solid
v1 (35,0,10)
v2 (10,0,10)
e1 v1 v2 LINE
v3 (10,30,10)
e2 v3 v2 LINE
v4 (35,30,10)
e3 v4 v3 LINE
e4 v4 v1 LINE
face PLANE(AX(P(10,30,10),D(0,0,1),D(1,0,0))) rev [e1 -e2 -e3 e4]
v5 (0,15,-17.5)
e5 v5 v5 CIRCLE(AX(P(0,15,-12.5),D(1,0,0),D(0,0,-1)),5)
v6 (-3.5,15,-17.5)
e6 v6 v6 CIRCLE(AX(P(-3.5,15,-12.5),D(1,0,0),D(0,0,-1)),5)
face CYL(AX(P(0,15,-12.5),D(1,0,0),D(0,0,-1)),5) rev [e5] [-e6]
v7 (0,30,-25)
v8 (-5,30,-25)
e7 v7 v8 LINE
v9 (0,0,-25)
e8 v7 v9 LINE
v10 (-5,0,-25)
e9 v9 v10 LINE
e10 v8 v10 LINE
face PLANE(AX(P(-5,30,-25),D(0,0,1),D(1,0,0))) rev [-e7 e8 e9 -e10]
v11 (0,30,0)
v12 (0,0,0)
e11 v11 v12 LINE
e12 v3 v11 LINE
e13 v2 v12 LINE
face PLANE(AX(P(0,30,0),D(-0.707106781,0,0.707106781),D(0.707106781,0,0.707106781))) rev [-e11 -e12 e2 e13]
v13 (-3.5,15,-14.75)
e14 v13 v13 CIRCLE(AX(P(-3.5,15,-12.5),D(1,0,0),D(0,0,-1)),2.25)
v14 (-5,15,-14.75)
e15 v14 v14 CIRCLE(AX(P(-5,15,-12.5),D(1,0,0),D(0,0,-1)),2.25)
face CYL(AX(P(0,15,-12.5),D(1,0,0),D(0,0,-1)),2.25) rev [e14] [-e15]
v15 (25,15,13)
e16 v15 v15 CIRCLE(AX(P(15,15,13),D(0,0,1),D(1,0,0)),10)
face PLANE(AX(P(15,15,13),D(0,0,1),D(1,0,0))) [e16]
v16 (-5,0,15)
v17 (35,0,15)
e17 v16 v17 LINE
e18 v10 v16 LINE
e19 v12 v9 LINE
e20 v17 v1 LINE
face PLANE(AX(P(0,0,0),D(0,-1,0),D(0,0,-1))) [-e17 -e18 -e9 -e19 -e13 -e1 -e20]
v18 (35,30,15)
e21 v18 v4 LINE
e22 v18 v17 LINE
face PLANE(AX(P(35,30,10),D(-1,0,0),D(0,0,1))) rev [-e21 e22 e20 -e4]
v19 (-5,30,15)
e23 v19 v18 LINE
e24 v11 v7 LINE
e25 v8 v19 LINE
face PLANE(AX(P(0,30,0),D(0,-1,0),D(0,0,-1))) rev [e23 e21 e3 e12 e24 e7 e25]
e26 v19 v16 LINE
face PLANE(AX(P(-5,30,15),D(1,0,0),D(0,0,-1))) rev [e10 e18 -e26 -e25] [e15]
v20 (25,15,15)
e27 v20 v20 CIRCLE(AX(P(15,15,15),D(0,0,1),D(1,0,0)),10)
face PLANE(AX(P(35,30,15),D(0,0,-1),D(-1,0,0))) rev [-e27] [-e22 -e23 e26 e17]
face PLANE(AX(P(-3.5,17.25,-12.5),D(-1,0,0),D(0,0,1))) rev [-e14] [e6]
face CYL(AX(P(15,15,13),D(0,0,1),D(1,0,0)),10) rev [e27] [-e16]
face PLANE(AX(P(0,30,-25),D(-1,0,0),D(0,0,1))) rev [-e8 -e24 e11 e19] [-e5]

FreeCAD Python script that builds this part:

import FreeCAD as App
import Part
import Sketcher
Q = App.Units.Quantity


def add_polygon(sketch, points):
    """Adds a closed chain of lines whose ends are joined by coincident constraints."""
    first, n = sketch.GeometryCount, len(points)
    for a, b in zip(points, points[1:] + points[:1]):
        sketch.addGeometry(Part.LineSegment(App.Vector(*a, 0), App.Vector(*b, 0)), False)
    for i in range(n):
        sketch.addConstraint(Sketcher.Constraint("Coincident", first + i, 2, first + (i + 1) % n, 1))

doc = App.newDocument("Part")
body = doc.addObject("PartDesign::Body", "Body")

# Sketch on XZ plane
sketch1 = body.newObject("Sketcher::SketchObject", "Sketch")
sketch1.AttachmentSupport = (doc.getObject("XZ_Plane"), [""])
sketch1.MapMode = "FlatFace"
add_polygon(sketch1, [(0, 0), (0, -25), (-5, -25), (-5, 15), (35, 15), (35, 10), (10, 10)])  # lines 0-6
sketch1.addConstraint(Sketcher.Constraint("Vertical", 0))
sketch1.addConstraint(Sketcher.Constraint("Horizontal", 1))
sketch1.addConstraint(Sketcher.Constraint("Vertical", 2))
sketch1.addConstraint(Sketcher.Constraint("Horizontal", 3))
sketch1.addConstraint(Sketcher.Constraint("Vertical", 4))
sketch1.addConstraint(Sketcher.Constraint("Horizontal", 5))
sketch1.addConstraint(Sketcher.Constraint("Coincident", 6, 2, -1, 1))
sketch1.addConstraint(Sketcher.Constraint("Equal", 5, 0))
sketch1.addConstraint(Sketcher.Constraint("Equal", 3, 2))
sketch1.addConstraint(Sketcher.Constraint("Equal", 1, 4))
sketch1.addConstraint(Sketcher.Constraint("DistanceX", 1, 2, 1, 1, Q("5 mm")))
sketch1.addConstraint(Sketcher.Constraint("DistanceX", 3, 1, 3, 2, Q("40 mm")))
sketch1.addConstraint(Sketcher.Constraint("DistanceX", 5, 2, 5, 1, Q("25 mm")))
pad1 = body.newObject("PartDesign::Pad", "Pad")
pad1.Profile = sketch1
pad1.Length = 30
pad1.Reversed = True

# Sketch on YZ plane
sketch2 = body.newObject("Sketcher::SketchObject", "Sketch001")
sketch2.AttachmentSupport = (doc.getObject("YZ_Plane"), [""])
sketch2.MapMode = "FlatFace"
sketch2.addGeometry(Part.Circle(App.Vector(15, -12.5, 0), App.Vector(0, 0, 1), 2.2), False)
sketch2.addConstraint(Sketcher.Constraint("Diameter", 0, Q("4.5 mm")))
sketch2.addConstraint(Sketcher.Constraint("DistanceX", -1, 1, 0, 3, Q("15 mm")))
sketch2.addConstraint(Sketcher.Constraint("DistanceY", 0, 3, -1, 1, Q("12.5 mm")))
doc.recompute()
hole = body.newObject("PartDesign::Hole", "Hole")
hole.Profile = sketch2
hole.ThreadType = "None"
hole.Diameter = 4.5
hole.DepthType = "Dimension"
hole.Depth = 15
hole.DrillPoint = "Angled"
hole.DrillPointAngle = 118
hole.HoleCutType = "Counterbore"
hole.HoleCutDiameter = 10
hole.HoleCutDepth = 3.5

# Sketch on XY plane
sketch3 = body.newObject("Sketcher::SketchObject", "Sketch002")
sketch3.AttachmentSupport = (doc.getObject("XY_Plane"), [""])
sketch3.MapMode = "FlatFace"
sketch3.AttachmentOffset = App.Placement(App.Vector(0, 0, 15), App.Rotation())
sketch3.addGeometry(Part.Circle(App.Vector(15, 15, 0), App.Vector(0, 0, 1), 10), False)
sketch3.addConstraint(Sketcher.Constraint("Diameter", 0, Q("20 mm")))
sketch3.addConstraint(Sketcher.Constraint("DistanceX", -1, 1, 0, 3, Q("15 mm")))
sketch3.addConstraint(Sketcher.Constraint("DistanceY", -1, 1, 0, 3, Q("15 mm")))
pocket1 = body.newObject("PartDesign::Pocket", "Pocket")
pocket1.Profile = sketch3
pocket1.Length = 2

doc.recompute()
